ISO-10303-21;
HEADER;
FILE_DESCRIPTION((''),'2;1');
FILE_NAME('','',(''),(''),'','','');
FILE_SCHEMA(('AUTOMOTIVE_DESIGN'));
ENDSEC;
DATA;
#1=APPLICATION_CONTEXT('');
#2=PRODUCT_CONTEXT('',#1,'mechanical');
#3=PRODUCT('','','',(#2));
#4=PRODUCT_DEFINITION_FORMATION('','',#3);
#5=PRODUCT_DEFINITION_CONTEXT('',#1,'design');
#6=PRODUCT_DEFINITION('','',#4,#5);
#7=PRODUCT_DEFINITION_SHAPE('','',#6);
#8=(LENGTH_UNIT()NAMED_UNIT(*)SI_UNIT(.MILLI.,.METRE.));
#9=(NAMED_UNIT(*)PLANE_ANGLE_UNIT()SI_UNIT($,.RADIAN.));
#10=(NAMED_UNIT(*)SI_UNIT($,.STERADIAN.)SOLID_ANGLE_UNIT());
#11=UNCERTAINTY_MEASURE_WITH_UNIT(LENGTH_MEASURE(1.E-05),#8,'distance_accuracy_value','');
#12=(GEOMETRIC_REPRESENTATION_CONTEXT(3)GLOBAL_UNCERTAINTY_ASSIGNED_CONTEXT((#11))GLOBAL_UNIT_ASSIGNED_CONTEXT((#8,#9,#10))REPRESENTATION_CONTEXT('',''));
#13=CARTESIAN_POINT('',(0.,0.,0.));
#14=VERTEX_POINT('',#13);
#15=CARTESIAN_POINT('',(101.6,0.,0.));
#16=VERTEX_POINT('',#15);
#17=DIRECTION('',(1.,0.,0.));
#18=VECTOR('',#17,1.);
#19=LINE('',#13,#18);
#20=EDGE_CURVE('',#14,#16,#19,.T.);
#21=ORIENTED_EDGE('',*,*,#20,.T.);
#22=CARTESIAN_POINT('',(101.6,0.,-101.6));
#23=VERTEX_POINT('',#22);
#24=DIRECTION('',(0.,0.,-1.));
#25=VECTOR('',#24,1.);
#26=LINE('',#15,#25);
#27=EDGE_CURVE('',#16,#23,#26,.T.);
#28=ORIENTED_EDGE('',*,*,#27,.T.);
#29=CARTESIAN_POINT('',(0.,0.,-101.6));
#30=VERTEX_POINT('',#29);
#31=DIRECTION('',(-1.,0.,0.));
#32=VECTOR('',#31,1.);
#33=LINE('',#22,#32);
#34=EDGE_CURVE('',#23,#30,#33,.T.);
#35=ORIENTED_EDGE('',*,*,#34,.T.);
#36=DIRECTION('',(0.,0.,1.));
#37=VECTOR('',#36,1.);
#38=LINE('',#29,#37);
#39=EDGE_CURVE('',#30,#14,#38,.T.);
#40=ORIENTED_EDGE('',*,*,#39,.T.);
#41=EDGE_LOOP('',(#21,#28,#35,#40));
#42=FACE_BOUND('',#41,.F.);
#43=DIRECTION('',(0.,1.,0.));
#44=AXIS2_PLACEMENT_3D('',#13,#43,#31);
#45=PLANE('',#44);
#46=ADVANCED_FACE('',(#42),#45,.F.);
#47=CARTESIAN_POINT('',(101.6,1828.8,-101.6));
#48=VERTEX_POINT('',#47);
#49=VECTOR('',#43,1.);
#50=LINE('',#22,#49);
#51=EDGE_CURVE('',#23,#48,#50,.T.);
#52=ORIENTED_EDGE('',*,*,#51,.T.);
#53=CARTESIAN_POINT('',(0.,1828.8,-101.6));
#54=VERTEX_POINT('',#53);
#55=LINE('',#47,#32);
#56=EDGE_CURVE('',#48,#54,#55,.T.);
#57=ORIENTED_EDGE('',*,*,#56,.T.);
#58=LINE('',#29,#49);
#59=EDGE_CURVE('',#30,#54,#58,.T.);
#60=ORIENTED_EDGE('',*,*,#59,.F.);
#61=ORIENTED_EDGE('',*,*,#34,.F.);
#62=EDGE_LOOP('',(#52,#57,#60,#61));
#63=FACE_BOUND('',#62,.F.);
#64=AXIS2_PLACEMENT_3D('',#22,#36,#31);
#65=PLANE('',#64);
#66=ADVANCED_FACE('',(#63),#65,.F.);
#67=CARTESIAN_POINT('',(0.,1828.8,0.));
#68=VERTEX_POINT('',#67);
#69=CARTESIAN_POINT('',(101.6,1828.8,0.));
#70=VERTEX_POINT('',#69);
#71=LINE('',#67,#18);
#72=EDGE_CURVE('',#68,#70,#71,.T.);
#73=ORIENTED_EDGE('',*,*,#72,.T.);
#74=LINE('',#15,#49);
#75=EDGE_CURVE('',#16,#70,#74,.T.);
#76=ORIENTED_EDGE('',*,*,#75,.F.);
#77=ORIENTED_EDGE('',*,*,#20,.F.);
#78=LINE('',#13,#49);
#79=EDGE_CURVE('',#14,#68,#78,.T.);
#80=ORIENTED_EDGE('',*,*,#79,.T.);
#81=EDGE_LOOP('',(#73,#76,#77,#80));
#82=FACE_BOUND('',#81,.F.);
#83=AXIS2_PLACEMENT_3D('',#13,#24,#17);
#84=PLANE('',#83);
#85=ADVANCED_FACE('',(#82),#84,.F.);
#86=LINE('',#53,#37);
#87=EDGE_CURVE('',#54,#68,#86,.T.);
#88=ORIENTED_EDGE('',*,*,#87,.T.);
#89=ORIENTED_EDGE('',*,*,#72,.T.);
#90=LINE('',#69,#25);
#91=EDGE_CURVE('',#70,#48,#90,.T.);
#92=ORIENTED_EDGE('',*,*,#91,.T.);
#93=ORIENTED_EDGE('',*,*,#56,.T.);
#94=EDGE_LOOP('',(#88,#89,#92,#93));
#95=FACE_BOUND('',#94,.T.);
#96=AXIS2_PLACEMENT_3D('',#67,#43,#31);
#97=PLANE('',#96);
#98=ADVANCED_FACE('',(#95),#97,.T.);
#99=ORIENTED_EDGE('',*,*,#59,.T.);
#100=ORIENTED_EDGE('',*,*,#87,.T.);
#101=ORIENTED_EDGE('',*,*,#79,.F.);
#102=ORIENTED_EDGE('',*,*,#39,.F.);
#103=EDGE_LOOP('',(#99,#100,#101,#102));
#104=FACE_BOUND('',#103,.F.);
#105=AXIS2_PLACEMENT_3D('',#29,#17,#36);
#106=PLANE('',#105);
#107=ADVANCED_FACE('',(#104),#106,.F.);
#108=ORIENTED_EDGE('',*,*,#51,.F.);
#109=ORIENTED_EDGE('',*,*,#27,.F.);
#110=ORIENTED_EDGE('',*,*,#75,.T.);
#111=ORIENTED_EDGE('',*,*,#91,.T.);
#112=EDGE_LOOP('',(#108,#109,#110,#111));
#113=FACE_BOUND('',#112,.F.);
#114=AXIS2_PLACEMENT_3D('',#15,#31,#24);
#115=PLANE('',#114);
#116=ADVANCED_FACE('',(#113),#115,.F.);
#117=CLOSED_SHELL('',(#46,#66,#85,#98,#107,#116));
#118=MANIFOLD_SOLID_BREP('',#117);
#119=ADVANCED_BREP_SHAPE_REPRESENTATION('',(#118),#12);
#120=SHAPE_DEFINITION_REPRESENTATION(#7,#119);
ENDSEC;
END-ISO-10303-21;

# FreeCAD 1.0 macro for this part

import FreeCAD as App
import Part
import Sketcher

V = App.Vector
Q = App.Units.Quantity


def add_polygon(sketch, points):
    """Adds a closed chain of lines whose ends are joined by coincident constraints."""
    first, n = sketch.GeometryCount, len(points)
    for a, b in zip(points, points[1:] + points[:1]):
        sketch.addGeometry(Part.LineSegment(App.Vector(*a, 0), App.Vector(*b, 0)), False)
    for i in range(n):
        sketch.addConstraint(Sketcher.Constraint("Coincident", first + i, 2, first + (i + 1) % n, 1))

doc = App.newDocument("Part")
body = doc.addObject("PartDesign::Body", "Body")

# Sketch on XZ plane
sketch1 = doc.addObject("Sketcher::SketchObject", "Sketch")
body.addObject(sketch1)
sketch1.AttachmentSupport = (doc.XZ_Plane, [""])
sketch1.MapMode = "FlatFace"
add_polygon(sketch1, [(0, -102), (0, 0), (102, 0), (102, -102)])  # lines 0-3
sketch1.addConstraint([
    Sketcher.Constraint("Vertical", 0),
    Sketcher.Constraint("Horizontal", 1),
    Sketcher.Constraint("Vertical", 2),
    Sketcher.Constraint("Horizontal", 3),
    Sketcher.Constraint("Coincident", 0, 2, -1, 1),
    Sketcher.Constraint("Equal", 3, 0),
    Sketcher.Constraint("DistanceX", 1, 1, 1, 2, Q("4 in")),
])
pad1 = doc.addObject("PartDesign::Pad", "Pad")
body.addObject(pad1)
pad1.Profile = sketch1
pad1.Length = Q("72 in")
pad1.Reversed = True

doc.recompute()
